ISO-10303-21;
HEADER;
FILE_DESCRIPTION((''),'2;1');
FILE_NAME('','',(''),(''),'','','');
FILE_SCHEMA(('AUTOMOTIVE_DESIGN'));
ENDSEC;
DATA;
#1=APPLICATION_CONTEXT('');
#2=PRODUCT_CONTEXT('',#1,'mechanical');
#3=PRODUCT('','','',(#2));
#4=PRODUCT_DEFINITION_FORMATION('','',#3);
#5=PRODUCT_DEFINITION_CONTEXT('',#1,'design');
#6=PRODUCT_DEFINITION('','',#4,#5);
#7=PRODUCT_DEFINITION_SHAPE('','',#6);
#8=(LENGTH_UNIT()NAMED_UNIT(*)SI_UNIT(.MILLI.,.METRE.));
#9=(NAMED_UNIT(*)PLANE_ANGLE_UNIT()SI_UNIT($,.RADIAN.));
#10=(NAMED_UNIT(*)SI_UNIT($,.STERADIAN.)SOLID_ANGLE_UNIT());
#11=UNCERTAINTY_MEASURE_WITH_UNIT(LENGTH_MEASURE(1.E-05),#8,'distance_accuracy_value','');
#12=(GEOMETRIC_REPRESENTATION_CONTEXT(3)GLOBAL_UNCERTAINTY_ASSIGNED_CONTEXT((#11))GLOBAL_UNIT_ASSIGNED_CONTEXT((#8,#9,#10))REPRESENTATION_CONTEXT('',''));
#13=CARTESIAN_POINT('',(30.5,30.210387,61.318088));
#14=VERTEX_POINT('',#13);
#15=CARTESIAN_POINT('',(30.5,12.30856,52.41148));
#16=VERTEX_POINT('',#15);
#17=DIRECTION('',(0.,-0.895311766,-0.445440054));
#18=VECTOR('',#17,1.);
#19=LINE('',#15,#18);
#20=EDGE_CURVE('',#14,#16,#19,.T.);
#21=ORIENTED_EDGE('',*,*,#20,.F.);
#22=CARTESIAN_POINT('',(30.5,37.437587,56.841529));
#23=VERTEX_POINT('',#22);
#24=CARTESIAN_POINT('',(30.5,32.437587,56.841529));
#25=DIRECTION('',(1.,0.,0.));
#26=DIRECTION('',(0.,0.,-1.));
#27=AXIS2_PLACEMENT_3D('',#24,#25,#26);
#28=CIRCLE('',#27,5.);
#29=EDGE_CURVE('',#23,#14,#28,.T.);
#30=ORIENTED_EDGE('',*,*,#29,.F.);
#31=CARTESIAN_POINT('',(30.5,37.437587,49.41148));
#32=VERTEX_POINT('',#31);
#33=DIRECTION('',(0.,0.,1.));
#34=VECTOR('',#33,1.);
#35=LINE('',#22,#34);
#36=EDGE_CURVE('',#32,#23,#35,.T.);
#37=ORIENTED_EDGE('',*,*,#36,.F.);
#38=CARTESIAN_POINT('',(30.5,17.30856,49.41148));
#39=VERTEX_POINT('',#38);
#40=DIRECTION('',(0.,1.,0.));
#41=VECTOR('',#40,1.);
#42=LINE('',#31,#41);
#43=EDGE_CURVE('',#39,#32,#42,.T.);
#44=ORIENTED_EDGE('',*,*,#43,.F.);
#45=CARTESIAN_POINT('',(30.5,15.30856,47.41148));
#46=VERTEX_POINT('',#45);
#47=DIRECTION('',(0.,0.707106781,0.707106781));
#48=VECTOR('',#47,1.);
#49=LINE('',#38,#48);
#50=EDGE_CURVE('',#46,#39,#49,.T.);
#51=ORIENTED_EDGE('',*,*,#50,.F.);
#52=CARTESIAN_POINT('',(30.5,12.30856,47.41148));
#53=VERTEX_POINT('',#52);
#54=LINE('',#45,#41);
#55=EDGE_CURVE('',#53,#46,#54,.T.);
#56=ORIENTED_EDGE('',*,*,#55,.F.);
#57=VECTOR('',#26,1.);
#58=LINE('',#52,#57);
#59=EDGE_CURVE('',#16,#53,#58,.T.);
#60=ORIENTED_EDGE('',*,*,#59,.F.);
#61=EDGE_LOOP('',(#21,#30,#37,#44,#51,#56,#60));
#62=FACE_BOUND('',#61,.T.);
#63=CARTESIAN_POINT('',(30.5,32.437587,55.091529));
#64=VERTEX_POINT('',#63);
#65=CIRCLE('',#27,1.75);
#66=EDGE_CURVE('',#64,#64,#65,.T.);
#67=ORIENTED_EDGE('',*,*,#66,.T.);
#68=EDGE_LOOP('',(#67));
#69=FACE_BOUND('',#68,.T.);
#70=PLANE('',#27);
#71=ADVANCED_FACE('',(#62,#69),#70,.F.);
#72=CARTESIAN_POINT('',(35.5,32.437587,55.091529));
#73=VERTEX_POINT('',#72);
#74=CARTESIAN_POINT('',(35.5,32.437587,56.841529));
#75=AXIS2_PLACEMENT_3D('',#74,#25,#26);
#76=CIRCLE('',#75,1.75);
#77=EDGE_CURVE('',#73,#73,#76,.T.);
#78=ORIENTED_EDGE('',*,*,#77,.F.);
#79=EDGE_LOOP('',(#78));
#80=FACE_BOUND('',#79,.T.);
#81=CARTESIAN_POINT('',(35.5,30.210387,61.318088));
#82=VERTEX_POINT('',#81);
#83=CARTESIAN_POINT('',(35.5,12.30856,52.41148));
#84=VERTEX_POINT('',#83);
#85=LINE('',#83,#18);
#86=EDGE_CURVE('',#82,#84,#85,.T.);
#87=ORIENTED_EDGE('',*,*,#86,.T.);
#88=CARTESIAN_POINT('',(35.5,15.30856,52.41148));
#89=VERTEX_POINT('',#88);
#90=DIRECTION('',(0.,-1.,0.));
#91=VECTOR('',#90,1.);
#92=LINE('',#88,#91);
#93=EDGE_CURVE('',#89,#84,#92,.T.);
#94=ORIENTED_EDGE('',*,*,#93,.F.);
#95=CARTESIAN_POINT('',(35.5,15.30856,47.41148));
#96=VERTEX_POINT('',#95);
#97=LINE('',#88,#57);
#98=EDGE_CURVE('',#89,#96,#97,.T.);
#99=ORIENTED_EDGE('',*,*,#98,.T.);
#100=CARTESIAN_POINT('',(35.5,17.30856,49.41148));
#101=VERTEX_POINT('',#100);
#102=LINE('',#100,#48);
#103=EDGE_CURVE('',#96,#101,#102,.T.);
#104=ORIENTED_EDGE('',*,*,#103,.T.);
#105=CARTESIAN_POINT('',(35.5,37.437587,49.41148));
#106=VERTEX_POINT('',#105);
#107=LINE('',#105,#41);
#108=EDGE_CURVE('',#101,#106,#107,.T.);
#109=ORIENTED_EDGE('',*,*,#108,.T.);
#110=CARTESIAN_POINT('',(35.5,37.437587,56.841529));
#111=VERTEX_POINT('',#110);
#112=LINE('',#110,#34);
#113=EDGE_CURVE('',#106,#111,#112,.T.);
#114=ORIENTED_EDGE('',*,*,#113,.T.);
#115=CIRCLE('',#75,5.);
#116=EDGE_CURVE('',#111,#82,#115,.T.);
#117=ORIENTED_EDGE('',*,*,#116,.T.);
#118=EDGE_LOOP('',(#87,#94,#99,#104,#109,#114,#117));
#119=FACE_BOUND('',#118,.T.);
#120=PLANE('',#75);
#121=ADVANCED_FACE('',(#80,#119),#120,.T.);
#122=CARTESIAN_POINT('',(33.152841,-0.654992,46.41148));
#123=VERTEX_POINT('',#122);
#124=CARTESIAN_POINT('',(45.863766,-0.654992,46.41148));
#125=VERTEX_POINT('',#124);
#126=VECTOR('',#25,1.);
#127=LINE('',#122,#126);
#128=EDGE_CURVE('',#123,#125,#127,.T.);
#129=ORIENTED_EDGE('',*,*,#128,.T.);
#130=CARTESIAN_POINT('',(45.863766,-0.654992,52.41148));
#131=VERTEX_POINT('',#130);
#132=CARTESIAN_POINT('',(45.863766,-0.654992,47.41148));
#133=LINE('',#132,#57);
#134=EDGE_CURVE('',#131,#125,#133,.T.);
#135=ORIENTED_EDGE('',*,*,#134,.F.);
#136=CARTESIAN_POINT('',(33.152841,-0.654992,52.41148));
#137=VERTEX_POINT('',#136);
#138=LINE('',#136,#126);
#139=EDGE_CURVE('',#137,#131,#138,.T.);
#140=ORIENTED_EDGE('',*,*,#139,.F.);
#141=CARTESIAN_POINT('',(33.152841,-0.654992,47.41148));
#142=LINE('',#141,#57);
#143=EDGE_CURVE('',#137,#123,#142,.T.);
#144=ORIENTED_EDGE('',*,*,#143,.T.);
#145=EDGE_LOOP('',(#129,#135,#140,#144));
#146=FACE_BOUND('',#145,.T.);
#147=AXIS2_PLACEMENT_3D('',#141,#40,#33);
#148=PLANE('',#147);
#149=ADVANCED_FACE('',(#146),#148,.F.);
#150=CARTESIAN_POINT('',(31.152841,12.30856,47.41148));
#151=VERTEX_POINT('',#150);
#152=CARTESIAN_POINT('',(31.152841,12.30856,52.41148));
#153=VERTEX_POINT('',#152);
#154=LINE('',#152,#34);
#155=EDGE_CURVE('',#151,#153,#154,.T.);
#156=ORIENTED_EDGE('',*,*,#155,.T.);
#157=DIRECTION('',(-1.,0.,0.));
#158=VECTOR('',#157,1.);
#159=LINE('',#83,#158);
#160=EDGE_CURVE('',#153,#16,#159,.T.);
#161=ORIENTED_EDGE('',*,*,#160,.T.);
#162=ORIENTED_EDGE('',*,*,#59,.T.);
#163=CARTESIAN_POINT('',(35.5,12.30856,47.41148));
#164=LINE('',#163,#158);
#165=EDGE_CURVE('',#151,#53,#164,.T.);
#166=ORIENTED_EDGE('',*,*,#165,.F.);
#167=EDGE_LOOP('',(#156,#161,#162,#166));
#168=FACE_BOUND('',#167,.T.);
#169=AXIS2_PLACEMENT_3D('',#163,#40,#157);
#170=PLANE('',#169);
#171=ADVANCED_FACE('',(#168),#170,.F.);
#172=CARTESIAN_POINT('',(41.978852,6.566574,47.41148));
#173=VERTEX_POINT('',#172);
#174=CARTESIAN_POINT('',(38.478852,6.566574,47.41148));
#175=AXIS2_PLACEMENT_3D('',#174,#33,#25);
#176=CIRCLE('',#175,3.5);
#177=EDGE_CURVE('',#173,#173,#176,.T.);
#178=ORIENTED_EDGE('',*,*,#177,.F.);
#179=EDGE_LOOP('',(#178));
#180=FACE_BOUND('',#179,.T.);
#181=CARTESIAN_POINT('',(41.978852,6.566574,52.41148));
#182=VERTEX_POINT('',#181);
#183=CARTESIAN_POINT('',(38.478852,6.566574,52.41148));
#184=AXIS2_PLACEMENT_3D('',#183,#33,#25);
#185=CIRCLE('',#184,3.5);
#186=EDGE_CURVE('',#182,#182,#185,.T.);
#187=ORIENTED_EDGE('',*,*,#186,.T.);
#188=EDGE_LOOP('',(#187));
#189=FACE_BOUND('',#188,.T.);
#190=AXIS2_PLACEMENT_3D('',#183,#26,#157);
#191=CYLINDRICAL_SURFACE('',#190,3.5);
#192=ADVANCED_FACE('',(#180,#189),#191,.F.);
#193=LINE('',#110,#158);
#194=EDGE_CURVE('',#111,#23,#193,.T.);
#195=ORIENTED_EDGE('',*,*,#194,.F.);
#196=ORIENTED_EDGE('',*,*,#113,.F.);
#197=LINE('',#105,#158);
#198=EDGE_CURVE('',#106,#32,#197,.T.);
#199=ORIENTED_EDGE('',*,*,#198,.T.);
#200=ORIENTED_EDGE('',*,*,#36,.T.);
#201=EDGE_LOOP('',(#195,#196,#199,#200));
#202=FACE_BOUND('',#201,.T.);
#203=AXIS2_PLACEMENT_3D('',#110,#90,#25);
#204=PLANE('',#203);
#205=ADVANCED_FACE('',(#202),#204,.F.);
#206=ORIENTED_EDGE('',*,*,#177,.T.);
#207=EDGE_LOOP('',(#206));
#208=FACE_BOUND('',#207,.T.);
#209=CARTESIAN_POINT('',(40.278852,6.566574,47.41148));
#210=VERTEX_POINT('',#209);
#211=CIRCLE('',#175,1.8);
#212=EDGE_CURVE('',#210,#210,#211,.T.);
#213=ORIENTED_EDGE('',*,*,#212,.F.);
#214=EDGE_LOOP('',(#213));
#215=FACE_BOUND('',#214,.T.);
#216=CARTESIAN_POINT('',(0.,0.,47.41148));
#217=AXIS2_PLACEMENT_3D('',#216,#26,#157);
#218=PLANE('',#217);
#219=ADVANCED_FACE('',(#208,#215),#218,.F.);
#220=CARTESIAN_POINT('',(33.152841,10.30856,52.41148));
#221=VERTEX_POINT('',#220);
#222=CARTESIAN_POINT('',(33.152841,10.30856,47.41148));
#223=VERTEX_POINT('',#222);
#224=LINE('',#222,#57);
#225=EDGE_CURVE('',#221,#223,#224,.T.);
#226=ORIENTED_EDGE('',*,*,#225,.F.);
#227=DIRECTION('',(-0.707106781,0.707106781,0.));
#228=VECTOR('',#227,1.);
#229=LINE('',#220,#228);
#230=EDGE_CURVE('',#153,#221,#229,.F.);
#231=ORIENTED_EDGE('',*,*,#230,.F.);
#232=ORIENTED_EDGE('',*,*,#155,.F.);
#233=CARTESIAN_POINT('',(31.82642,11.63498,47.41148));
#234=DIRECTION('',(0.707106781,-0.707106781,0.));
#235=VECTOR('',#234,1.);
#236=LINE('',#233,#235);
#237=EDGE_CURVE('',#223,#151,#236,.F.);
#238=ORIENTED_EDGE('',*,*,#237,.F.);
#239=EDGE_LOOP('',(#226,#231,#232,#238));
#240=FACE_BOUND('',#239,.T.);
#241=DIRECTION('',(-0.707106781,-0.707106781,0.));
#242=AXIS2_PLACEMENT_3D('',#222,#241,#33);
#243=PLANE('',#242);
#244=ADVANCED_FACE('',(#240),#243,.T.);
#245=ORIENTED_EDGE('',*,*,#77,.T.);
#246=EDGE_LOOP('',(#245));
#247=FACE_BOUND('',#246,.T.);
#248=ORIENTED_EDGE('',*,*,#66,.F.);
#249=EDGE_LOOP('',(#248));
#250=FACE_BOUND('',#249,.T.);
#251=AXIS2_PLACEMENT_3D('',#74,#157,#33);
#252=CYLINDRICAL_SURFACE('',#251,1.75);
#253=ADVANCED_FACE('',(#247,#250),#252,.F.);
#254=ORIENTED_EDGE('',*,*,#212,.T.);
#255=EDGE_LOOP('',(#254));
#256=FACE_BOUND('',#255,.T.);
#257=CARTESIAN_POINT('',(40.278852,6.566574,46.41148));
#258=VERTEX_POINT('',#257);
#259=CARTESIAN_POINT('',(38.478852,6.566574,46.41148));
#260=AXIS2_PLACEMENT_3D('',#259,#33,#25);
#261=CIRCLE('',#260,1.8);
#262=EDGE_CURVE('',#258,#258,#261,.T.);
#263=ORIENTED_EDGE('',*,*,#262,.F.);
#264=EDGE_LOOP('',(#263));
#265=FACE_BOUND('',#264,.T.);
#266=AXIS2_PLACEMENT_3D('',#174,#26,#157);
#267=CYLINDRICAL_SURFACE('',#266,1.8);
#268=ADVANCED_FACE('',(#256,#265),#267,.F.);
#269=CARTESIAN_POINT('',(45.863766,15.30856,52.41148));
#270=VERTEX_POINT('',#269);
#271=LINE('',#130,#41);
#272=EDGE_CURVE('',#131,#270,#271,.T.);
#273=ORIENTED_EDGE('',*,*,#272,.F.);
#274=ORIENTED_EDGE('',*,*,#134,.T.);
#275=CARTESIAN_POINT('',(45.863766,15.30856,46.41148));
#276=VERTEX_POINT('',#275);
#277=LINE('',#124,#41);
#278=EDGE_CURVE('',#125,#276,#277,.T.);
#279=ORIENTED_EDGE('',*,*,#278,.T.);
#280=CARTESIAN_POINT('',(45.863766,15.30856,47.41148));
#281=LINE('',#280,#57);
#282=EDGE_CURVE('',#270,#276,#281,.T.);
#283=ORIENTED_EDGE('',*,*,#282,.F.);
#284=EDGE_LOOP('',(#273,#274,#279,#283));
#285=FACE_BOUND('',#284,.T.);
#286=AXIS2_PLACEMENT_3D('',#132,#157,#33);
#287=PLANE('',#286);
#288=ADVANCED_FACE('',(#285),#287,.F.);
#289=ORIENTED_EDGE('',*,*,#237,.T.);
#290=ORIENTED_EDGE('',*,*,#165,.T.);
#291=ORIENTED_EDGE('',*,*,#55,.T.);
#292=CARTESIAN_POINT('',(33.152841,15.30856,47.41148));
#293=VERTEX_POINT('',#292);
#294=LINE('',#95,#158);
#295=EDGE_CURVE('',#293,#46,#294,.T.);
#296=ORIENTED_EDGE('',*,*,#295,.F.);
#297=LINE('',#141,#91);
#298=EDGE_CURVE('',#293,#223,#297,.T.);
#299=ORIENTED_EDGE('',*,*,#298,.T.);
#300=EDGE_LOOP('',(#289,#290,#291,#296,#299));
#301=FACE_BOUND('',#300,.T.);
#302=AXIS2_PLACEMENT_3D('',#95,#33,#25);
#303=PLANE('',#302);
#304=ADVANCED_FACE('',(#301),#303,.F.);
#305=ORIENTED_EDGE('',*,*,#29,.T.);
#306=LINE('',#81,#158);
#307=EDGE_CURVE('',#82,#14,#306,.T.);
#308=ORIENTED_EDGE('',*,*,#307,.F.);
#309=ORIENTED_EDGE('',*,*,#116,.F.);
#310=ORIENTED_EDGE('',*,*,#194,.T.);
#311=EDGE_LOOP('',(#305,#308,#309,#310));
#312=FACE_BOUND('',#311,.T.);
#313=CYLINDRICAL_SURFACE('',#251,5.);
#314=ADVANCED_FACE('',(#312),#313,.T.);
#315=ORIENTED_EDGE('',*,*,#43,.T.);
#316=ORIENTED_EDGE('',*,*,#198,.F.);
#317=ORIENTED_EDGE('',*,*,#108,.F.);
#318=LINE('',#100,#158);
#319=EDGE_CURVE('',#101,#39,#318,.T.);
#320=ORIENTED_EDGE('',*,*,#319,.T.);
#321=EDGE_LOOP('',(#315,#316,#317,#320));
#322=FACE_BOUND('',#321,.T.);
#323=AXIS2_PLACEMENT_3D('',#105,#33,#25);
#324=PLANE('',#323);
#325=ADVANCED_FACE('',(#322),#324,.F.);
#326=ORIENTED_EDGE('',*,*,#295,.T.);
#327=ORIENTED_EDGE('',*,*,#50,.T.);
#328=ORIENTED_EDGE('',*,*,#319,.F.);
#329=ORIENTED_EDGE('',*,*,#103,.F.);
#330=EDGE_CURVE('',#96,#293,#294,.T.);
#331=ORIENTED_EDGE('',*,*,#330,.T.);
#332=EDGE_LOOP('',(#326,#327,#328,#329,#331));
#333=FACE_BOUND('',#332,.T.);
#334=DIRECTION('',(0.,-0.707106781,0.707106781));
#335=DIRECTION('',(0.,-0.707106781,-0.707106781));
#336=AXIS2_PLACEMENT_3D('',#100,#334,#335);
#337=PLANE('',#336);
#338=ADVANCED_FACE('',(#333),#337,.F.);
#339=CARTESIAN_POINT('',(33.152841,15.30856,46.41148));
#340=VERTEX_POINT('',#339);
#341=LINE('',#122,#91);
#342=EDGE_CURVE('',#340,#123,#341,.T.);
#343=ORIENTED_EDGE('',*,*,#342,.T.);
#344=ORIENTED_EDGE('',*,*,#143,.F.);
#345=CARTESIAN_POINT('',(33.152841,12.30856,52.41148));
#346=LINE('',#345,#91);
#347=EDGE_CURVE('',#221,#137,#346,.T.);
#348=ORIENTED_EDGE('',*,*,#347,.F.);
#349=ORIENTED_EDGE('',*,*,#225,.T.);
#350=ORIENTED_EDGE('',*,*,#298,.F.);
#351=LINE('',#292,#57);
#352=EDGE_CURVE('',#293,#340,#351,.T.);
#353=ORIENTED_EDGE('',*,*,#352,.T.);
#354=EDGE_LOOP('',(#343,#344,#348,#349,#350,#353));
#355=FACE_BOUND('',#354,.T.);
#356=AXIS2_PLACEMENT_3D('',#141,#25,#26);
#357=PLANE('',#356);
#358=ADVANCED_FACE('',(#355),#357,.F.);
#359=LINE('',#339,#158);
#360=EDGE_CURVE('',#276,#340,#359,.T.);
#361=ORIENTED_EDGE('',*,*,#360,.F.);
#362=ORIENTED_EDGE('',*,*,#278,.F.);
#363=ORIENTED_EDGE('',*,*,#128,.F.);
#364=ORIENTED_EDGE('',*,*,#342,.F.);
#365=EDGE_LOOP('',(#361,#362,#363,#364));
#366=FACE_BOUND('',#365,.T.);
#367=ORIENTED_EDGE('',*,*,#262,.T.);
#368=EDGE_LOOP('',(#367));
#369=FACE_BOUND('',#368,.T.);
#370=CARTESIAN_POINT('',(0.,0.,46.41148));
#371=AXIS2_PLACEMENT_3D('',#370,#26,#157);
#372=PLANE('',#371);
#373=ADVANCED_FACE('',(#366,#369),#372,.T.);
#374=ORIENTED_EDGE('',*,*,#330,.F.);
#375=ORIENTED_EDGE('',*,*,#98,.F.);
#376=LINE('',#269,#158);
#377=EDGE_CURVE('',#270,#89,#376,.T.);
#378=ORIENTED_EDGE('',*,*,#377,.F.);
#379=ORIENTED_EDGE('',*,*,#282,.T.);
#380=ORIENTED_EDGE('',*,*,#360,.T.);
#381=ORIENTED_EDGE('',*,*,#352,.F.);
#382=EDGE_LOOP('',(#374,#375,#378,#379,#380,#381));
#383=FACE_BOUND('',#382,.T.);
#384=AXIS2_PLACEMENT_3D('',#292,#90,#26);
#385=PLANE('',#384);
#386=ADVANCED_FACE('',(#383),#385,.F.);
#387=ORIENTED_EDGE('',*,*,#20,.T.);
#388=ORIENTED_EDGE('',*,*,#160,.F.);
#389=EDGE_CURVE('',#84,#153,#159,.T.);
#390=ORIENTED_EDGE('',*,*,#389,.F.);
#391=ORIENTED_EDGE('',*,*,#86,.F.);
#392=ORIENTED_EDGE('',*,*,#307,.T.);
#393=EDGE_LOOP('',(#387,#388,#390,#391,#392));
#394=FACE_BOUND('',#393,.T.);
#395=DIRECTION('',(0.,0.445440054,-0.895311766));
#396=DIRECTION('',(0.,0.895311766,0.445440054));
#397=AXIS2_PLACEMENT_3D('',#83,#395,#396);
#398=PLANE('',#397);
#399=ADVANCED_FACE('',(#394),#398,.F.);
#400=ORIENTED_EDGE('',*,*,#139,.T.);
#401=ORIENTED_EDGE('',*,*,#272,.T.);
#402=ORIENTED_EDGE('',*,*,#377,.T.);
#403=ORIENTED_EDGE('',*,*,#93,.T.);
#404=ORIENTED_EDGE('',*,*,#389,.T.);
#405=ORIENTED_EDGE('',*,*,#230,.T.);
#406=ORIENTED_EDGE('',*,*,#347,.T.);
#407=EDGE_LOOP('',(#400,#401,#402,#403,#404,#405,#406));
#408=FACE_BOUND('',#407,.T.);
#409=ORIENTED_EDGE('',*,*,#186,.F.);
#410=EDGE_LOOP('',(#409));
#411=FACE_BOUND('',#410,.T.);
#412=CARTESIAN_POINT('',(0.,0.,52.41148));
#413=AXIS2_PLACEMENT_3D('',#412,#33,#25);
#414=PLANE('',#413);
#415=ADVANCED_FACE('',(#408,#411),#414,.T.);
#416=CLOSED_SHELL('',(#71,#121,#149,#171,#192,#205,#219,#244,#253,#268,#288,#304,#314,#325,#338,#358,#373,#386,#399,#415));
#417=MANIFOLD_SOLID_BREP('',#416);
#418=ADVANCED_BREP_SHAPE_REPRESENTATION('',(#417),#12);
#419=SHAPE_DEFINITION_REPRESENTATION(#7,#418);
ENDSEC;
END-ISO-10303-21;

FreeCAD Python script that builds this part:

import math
import FreeCAD as App
import Part
import Sketcher
from FreeCAD import Vector
Q = App.Units.Quantity


def edges_at(feature, points):
    """Names of the edges that pass closest to the given points."""
    edges = feature.Shape.Edges
    near = lambda p: min(range(len(edges)), key=lambda i: edges[i].distToShape(Part.Vertex(*p))[0])
    return sorted({f"Edge{near(p) + 1}" for p in points})


def add_polygon(sketch, points):
    """Adds a closed chain of lines whose ends are joined by coincident constraints."""
    first, n = sketch.GeometryCount, len(points)
    for a, b in zip(points, points[1:] + points[:1]):
        sketch.addGeometry(Part.LineSegment(App.Vector(*a, 0), App.Vector(*b, 0)), False)
    for i in range(n):
        sketch.addConstraint(Sketcher.Constraint("Coincident", first + i, 2, first + (i + 1) % n, 1))

doc = App.newDocument("Part")
body = doc.addObject("PartDesign::Body", "Body")

# Sketch on XY plane
sketch1 = doc.addObject("Sketcher::SketchObject", "Sketch")
body.addObject(sketch1)
sketch1.AttachmentSupport = (doc.XY_Plane, [""])
sketch1.MapMode = "FlatFace"
sketch1.AttachmentOffset = App.Placement(Vector(0, 0, 46.41148), App.Rotation())
add_polygon(sketch1, [(33.2, 15.3), (33.2, -0.7), (45.9, -0.7), (45.9, 15.3)])  # lines 0-3
sketch1.addGeometry(Part.Circle(Vector(38.5, 6.6, 0), Vector(0, 0, 1), 1.8), False)  # 4
sketch1.addConstraint([
    Sketcher.Constraint("Vertical", 0),
    Sketcher.Constraint("Horizontal", 1),
    Sketcher.Constraint("Vertical", 2),
    Sketcher.Constraint("Horizontal", 3),
    Sketcher.Constraint("Diameter", 4, 3.6),
    Sketcher.Constraint("DistanceX", 1, 1, 1, 2, 12.710925),
    Sketcher.Constraint("DistanceY", 0, 2, 0, 1, 15.963552),
    Sketcher.Constraint("DistanceX", -1, 1, 0, 2, 33.152841),
    Sketcher.Constraint("DistanceY", -1, 1, 2, 2, 15.30856),
    Sketcher.Constraint("DistanceX", 0, 2, 4, 3, 5.326012),
    Sketcher.Constraint("DistanceY", -1, 1, 4, 3, 6.566574),
])
pad1 = doc.addObject("PartDesign::Pad", "Pad")
body.addObject(pad1)
pad1.Profile = sketch1
pad1.Length = 1

# Sketch on YZ plane
sketch2 = doc.addObject("Sketcher::SketchObject", "Sketch001")
body.addObject(sketch2)
sketch2.AttachmentSupport = (doc.YZ_Plane, [""])
sketch2.MapMode = "FlatFace"
sketch2.AttachmentOffset = App.Placement(Vector(0, 0, 30.5), App.Rotation())
sketch2.addGeometry([
    Part.LineSegment(Vector(37.4, 49.4, 0), Vector(37.4, 56.8, 0)),  # 0
    Part.ArcOfCircle(Part.Circle(Vector(32.4, 56.8, 0), Vector(0, 0, 1), 5), math.radians(0), math.radians(116)),  # 1
    Part.LineSegment(Vector(30.2, 61.3, 0), Vector(12.3, 52.4, 0)),  # 2
    Part.LineSegment(Vector(12.3, 52.4, 0), Vector(12.3, 47.4, 0)),  # 3
    Part.LineSegment(Vector(12.3, 47.4, 0), Vector(15.3, 47.4, 0)),  # 4
    Part.LineSegment(Vector(15.3, 47.4, 0), Vector(17.3, 49.4, 0)),  # 5
    Part.LineSegment(Vector(17.3, 49.4, 0), Vector(37.4, 49.4, 0)),  # 6
    Part.Circle(Vector(32.4, 56.8, 0), Vector(0, 0, 1), 1.8),  # 7
], False)
sketch2.addConstraint([
    Sketcher.Constraint("Tangent", 0, 2, 1, 1),
    Sketcher.Constraint("Tangent", 1, 2, 2, 1),
    Sketcher.Constraint("Coincident", 2, 2, 3, 1),
    Sketcher.Constraint("Coincident", 3, 2, 4, 1),
    Sketcher.Constraint("Coincident", 4, 2, 5, 1),
    Sketcher.Constraint("Coincident", 5, 2, 6, 1),
    Sketcher.Constraint("Coincident", 6, 2, 0, 1),
    Sketcher.Constraint("Vertical", 0),
    Sketcher.Constraint("Vertical", 3),
    Sketcher.Constraint("Horizontal", 4),
    Sketcher.Constraint("Horizontal", 6),
    Sketcher.Constraint("Coincident", 7, 3, 1, 3),
    Sketcher.Constraint("Radius", 1, 5.0),
    Sketcher.Constraint("Diameter", 7, 3.5),
    Sketcher.Constraint("DistanceX", 4, 1, 4, 2, 3.0),
    Sketcher.Constraint("DistanceY", 3, 2, 3, 1, 5.0),
    Sketcher.Constraint("Angle", 5, Q("45 deg")),
    Sketcher.Constraint("DistanceX", 4, 2, 5, 2, 2.0),
    Sketcher.Constraint("DistanceY", 0, 1, 0, 2, 7.430049),
    Sketcher.Constraint("DistanceX", 1, 2, 1, 3, 2.2272),
    Sketcher.Constraint("DistanceY", -1, 1, 1, 3, 56.841529),
    Sketcher.Constraint("DistanceX", -1, 1, 2, 2, 12.30856),
])
pad2 = doc.addObject("PartDesign::Pad", "Pad001")
body.addObject(pad2)
pad2.Profile = sketch2
pad2.Length = 5

# Sketch on XY plane
sketch3 = doc.addObject("Sketcher::SketchObject", "Sketch002")
body.addObject(sketch3)
sketch3.AttachmentSupport = (doc.XY_Plane, [""])
sketch3.MapMode = "FlatFace"
sketch3.AttachmentOffset = App.Placement(Vector(0, 0, 47.41148), App.Rotation())
add_polygon(sketch3, [(35.5, 15.3), (35.5, 12.3), (33.2, 12.3), (33.2, -0.7), (45.9, -0.7), (45.9, 15.3)])  # lines 0-5
sketch3.addGeometry(Part.Circle(Vector(38.5, 6.6, 0), Vector(0, 0, 1), 3.5), False)  # 6
sketch3.addConstraint([
    Sketcher.Constraint("Vertical", 0),
    Sketcher.Constraint("Horizontal", 1),
    Sketcher.Constraint("Vertical", 2),
    Sketcher.Constraint("Horizontal", 3),
    Sketcher.Constraint("Vertical", 4),
    Sketcher.Constraint("Horizontal", 5),
    Sketcher.Constraint("Diameter", 6, 7.0),
    Sketcher.Constraint("DistanceY", 0, 2, 0, 1, 3.0),
    Sketcher.Constraint("DistanceX", -1, 1, 0, 2, 35.5),
    Sketcher.Constraint("DistanceX", 1, 2, 1, 1, 2.347159),
    Sketcher.Constraint("DistanceX", 3, 1, 3, 2, 12.710925),
    Sketcher.Constraint("DistanceY", 2, 2, 2, 1, 12.963552),
    Sketcher.Constraint("DistanceY", -1, 1, 0, 2, 12.30856),
    Sketcher.Constraint("DistanceX", 1, 2, 6, 3, 5.326012),
    Sketcher.Constraint("DistanceY", -1, 1, 6, 3, 6.566574),
])
pad3 = doc.addObject("PartDesign::Pad", "Pad002")
body.addObject(pad3)
pad3.Profile = sketch3
pad3.Length = 5
doc.recompute()

chamfer = doc.addObject("PartDesign::Chamfer", "Chamfer")
body.addObject(chamfer)
chamfer.Base = (pad3, edges_at(pad3, [(33.153, 12.309, 49.911)]))
chamfer.Size = 2

doc.recompute()
